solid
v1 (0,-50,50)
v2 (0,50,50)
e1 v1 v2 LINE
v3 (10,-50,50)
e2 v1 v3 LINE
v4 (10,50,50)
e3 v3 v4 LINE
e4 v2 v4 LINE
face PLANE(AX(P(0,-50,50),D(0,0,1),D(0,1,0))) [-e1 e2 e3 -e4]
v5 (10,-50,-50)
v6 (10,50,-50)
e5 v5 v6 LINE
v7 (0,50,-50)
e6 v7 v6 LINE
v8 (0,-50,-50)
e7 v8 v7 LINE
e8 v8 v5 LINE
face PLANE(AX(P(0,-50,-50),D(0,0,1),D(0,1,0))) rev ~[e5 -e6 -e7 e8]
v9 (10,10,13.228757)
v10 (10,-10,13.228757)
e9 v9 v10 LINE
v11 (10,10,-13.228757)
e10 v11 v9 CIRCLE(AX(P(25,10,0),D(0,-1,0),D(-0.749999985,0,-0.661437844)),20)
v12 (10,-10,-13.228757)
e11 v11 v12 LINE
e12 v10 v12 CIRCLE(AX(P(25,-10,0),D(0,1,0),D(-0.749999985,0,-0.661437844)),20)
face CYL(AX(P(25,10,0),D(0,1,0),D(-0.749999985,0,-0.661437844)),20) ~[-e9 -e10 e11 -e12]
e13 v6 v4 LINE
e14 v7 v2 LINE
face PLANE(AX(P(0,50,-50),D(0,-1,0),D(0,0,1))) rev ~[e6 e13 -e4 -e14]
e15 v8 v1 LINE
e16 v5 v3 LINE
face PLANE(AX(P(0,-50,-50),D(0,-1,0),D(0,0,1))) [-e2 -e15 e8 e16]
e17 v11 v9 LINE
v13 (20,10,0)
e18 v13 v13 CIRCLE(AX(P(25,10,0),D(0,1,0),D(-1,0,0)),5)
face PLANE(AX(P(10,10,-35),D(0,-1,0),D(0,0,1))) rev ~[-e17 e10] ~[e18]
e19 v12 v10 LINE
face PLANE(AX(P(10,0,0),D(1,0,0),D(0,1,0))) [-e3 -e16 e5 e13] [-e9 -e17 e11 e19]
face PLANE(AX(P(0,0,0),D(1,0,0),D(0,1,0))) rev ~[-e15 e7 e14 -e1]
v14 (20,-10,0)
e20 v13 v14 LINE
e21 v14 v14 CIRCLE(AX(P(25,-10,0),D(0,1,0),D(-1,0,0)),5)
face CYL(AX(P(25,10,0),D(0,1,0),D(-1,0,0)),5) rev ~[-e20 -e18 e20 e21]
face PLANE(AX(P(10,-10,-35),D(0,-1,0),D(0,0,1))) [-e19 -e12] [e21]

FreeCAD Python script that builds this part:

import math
import FreeCAD as App
import Part
import Sketcher


def add_polygon(sketch, points):
    """Adds a closed chain of lines whose ends are joined by coincident constraints."""
    first, n = sketch.GeometryCount, len(points)
    for a, b in zip(points, points[1:] + points[:1]):
        sketch.addGeometry(Part.LineSegment(App.Vector(*a, 0), App.Vector(*b, 0)), False)
    for i in range(n):
        sketch.addConstraint(Sketcher.Constraint("Coincident", first + i, 2, first + (i + 1) % n, 1))

doc = App.newDocument("Part")
params = doc.addObject("Spreadsheet::Sheet", "Params")
for row, (alias, value) in enumerate([
    ("sketch1_width", "100 mm"),
    ("pad1_length", "10 mm"),
    ("sketch2_width", "20 mm"),
    ("sketch2_height", "70 mm"),
    ("pad2_length", "70 mm"),
    ("sketch3_radius", "20 mm"),
    ("sketch3_width", "70 mm"),
    ("sketch4_diameter", "10 mm"),
], start=1):
    params.set(f"A{row}", alias)
    params.set(f"B{row}", "=" + value)
    params.setAlias(f"B{row}", alias)

body = doc.addObject("PartDesign::Body", "Body")

sketch1 = doc.addObject("Sketcher::SketchObject", "Sketch")
body.addObject(sketch1)
sketch1.AttachmentSupport = (doc.YZ_Plane, [""])
sketch1.MapMode = "FlatFace"
add_polygon(sketch1, [(-50, 50), (-50, -50), (50, -50), (50, 50)])
sketch1.addConstraint([
    Sketcher.Constraint("Vertical", 0),
    Sketcher.Constraint("Horizontal", 1),
    Sketcher.Constraint("Vertical", 2),
    Sketcher.Constraint("Horizontal", 3),
    Sketcher.Constraint("Symmetric", 0, 2, 2, 2, -1, 1),
    Sketcher.Constraint("Equal", 3, 0),
    Sketcher.Constraint("DistanceX", 1, 1, 1, 2, 100.0),
])
sketch1.setExpression("Constraints[10]", "Params.sketch1_width")
pad1 = doc.addObject("PartDesign::Pad", "Pad")
body.addObject(pad1)
pad1.Profile = sketch1
pad1.setExpression("Length", "Params.pad1_length")

sketch2 = doc.addObject("Sketcher::SketchObject", "Sketch001")
body.addObject(sketch2)
sketch2.AttachmentSupport = (doc.YZ_Plane, [""])
sketch2.MapMode = "FlatFace"
sketch2.AttachmentOffset = App.Placement(App.Vector(0, 0, 10), App.Rotation())
add_polygon(sketch2, [(-10, 35), (-10, -35), (10, -35), (10, 35)])
sketch2.addConstraint([
    Sketcher.Constraint("Vertical", 0),
    Sketcher.Constraint("Horizontal", 1),
    Sketcher.Constraint("Vertical", 2),
    Sketcher.Constraint("Horizontal", 3),
    Sketcher.Constraint("Symmetric", 0, 2, 2, 2, -1, 1),
    Sketcher.Constraint("DistanceX", 1, 1, 1, 2, 20.0),
    Sketcher.Constraint("DistanceY", 0, 2, 0, 1, 70.0),
])
sketch2.setExpression("Constraints[9]", "Params.sketch2_width")
sketch2.setExpression("Constraints[10]", "Params.sketch2_height")
pad2 = doc.addObject("PartDesign::Pad", "Pad001")
body.addObject(pad2)
pad2.Profile = sketch2
pad2.setExpression("Length", "Params.pad2_length")

sketch3 = doc.addObject("Sketcher::SketchObject", "Sketch002")
body.addObject(sketch3)
sketch3.AttachmentSupport = (doc.XZ_Plane, [""])
sketch3.MapMode = "FlatFace"
sketch3.AttachmentOffset = App.Placement(App.Vector(0, 0, -10), App.Rotation())
sketch3.addGeometry([
    Part.ArcOfCircle(Part.Circle(App.Vector(25, 0, 0), App.Vector(0, 0, 1), 20), math.radians(-139), math.radians(139)),
    Part.LineSegment(App.Vector(10, 13, 0), App.Vector(10, 35, 0)),
    Part.LineSegment(App.Vector(10, 35, 0), App.Vector(80, 35, 0)),
    Part.LineSegment(App.Vector(80, 35, 0), App.Vector(80, -35, 0)),
    Part.LineSegment(App.Vector(80, -35, 0), App.Vector(10, -35, 0)),
    Part.LineSegment(App.Vector(10, -35, 0), App.Vector(10, -13, 0)),
], False)
sketch3.addConstraint([
    Sketcher.Constraint("Coincident", 0, 2, 1, 1),
    Sketcher.Constraint("Coincident", 1, 2, 2, 1),
    Sketcher.Constraint("Coincident", 2, 2, 3, 1),
    Sketcher.Constraint("Coincident", 3, 2, 4, 1),
    Sketcher.Constraint("Coincident", 4, 2, 5, 1),
    Sketcher.Constraint("Coincident", 5, 2, 0, 1),
    Sketcher.Constraint("Vertical", 1),
    Sketcher.Constraint("Horizontal", 2),
    Sketcher.Constraint("Vertical", 3),
    Sketcher.Constraint("Horizontal", 4),
    Sketcher.Constraint("Vertical", 5),
    Sketcher.Constraint("Symmetric", 1, 2, 4, 2, -1),
    Sketcher.Constraint("PointOnObject", 0, 3, -1),
    Sketcher.Constraint("Equal", 4, 3),
    Sketcher.Constraint("Radius", 0, 20.0),
    Sketcher.Constraint("DistanceX", 2, 1, 2, 2, 70.0),
    Sketcher.Constraint("DistanceX", -1, 1, 0, 3, 25.0),
    Sketcher.Constraint("DistanceX", -1, 1, 0, 2, 10.0),
])
sketch3.setExpression("Constraints[14]", "Params.sketch3_radius")
sketch3.setExpression("Constraints[15]", "Params.sketch3_width")
pocket1 = doc.addObject("PartDesign::Pocket", "Pocket")
body.addObject(pocket1)
pocket1.Profile = sketch3
pocket1.Type = "ThroughAll"
pocket1.Reversed = True

sketch4 = doc.addObject("Sketcher::SketchObject", "Sketch003")
body.addObject(sketch4)
sketch4.AttachmentSupport = (doc.XZ_Plane, [""])
sketch4.MapMode = "FlatFace"
sketch4.AttachmentOffset = App.Placement(App.Vector(0, 0, -10), App.Rotation())
sketch4.addGeometry(Part.Circle(App.Vector(25, 0, 0), App.Vector(0, 0, 1), 5), False)
sketch4.addConstraint([
    Sketcher.Constraint("PointOnObject", 0, 3, -1),
    Sketcher.Constraint("Diameter", 0, 10.0),
    Sketcher.Constraint("DistanceX", -1, 1, 0, 3, 25.0),
])
sketch4.setExpression("Constraints[1]", "Params.sketch4_diameter")
pocket2 = doc.addObject("PartDesign::Pocket", "Pocket001")
body.addObject(pocket2)
pocket2.Profile = sketch4
pocket2.Type = "ThroughAll"
pocket2.Reversed = True

doc.recompute()
